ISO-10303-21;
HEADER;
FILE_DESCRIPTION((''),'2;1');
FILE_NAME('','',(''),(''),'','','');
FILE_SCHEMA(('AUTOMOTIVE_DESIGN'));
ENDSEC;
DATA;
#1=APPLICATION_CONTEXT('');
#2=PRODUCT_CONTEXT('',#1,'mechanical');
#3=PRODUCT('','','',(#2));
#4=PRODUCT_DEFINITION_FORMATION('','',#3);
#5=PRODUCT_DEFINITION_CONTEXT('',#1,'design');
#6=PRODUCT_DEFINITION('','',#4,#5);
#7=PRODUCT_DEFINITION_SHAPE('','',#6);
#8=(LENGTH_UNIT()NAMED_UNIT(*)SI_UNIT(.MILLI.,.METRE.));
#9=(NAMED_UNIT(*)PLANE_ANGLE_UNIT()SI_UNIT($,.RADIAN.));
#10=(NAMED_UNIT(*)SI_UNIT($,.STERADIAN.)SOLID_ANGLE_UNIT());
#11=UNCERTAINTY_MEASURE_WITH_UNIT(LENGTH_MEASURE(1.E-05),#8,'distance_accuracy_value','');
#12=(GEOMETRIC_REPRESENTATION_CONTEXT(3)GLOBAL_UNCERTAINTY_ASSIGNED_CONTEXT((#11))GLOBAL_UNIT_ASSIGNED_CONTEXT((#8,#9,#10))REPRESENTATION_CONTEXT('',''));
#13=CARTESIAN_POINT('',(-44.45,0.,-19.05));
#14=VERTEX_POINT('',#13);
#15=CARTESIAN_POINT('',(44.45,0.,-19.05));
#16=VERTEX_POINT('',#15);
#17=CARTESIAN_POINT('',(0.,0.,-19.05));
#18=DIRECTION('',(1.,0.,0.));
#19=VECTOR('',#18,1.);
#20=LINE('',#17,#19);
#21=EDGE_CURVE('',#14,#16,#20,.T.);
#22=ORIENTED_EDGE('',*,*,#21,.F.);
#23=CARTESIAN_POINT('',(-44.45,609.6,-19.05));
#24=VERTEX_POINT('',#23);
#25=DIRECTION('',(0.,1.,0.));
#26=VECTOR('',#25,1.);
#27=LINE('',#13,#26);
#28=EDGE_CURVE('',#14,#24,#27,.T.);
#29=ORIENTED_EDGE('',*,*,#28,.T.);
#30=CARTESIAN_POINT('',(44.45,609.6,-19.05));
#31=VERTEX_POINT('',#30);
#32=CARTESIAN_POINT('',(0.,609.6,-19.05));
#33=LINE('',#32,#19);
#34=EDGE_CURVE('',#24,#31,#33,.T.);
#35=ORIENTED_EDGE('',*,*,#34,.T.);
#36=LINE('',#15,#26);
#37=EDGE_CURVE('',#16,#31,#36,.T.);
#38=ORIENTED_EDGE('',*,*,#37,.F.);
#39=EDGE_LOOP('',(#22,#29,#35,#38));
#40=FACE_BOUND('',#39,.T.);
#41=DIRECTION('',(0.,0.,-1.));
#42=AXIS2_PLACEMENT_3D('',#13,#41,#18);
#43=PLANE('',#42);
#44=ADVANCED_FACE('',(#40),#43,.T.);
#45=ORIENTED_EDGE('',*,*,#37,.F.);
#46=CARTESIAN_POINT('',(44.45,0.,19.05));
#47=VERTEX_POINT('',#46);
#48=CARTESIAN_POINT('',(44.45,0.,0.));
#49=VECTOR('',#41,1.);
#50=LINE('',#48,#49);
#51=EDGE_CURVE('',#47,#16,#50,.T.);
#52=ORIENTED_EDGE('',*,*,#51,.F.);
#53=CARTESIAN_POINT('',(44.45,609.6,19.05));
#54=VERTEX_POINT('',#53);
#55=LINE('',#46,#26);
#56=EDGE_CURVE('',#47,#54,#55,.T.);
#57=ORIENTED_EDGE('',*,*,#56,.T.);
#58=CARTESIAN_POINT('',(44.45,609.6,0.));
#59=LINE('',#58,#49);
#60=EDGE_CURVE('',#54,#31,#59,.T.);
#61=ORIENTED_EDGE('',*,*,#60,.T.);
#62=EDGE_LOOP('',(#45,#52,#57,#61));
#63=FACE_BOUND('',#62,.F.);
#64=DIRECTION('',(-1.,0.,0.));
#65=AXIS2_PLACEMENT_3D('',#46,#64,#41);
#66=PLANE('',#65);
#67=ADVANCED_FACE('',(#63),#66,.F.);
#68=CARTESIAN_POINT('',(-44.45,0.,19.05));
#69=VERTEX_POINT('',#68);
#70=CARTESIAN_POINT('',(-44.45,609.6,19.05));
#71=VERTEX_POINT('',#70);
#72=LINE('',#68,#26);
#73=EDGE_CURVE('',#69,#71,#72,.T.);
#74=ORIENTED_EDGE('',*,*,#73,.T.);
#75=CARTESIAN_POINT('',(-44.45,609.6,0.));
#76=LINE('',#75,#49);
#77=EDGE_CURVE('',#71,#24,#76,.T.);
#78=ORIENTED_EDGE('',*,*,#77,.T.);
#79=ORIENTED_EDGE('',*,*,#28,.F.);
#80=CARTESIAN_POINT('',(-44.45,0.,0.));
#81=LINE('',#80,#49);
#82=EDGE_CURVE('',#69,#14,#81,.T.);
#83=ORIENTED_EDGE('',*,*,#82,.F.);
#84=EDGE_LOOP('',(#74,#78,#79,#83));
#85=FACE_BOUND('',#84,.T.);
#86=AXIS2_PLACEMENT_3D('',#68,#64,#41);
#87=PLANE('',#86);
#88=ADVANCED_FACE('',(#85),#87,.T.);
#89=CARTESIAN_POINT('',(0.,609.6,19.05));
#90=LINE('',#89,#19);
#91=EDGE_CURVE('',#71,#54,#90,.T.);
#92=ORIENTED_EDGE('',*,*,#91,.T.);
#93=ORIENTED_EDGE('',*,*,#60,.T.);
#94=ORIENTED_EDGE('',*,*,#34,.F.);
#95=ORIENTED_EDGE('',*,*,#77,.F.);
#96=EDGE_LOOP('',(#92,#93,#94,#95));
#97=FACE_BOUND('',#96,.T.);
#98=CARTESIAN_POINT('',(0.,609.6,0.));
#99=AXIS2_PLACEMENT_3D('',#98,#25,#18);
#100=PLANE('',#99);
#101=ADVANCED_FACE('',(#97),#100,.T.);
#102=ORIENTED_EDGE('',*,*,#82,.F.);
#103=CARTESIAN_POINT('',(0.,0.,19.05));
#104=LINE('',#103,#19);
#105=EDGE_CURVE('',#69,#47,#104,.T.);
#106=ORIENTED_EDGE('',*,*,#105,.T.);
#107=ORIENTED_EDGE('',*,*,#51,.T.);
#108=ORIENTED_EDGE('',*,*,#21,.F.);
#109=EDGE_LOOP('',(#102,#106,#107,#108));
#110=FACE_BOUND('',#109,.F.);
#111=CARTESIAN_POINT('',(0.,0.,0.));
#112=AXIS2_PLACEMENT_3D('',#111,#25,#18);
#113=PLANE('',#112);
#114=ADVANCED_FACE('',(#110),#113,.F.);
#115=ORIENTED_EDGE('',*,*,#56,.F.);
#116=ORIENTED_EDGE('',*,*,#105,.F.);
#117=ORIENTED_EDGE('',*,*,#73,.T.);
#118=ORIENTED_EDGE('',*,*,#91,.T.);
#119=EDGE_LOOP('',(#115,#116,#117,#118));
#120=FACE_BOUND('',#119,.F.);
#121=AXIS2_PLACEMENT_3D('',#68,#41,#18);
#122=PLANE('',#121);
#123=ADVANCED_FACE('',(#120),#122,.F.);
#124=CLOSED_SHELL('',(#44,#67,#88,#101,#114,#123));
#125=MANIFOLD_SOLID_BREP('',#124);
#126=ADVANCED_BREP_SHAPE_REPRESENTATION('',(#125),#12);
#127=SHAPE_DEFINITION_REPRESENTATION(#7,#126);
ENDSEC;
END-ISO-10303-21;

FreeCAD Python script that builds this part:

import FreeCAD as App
import Part
import Sketcher

V = App.Vector
Q = App.Units.Quantity

doc = App.newDocument("Part")
body = doc.addObject("PartDesign::Body", "Body")

sketch1 = doc.addObject("Sketcher::SketchObject", "Sketch")
body.addObject(sketch1)
sketch1.AttachmentSupport = (doc.XZ_Plane, [""])
sketch1.MapMode = "FlatFace"
sketch1.addGeometry(Part.LineSegment(V(-44, -19, 0), V(-44, 19, 0)), False)
sketch1.addGeometry(Part.LineSegment(V(-44, 19, 0), V(44, 19, 0)), False)
sketch1.addGeometry(Part.LineSegment(V(44, 19, 0), V(44, -19, 0)), False)
sketch1.addGeometry(Part.LineSegment(V(44, -19, 0), V(-44, -19, 0)), False)
sketch1.addConstraint(Sketcher.Constraint("Coincident", 0, 2, 1, 1))
sketch1.addConstraint(Sketcher.Constraint("Coincident", 1, 2, 2, 1))
sketch1.addConstraint(Sketcher.Constraint("Coincident", 2, 2, 3, 1))
sketch1.addConstraint(Sketcher.Constraint("Coincident", 3, 2, 0, 1))
sketch1.addConstraint(Sketcher.Constraint("Vertical", 0))
sketch1.addConstraint(Sketcher.Constraint("Horizontal", 1))
sketch1.addConstraint(Sketcher.Constraint("Vertical", 2))
sketch1.addConstraint(Sketcher.Constraint("Horizontal", 3))
sketch1.addConstraint(Sketcher.Constraint("Symmetric", 0, 2, 2, 2, -1, 1))
sketch1.addConstraint(Sketcher.Constraint("DistanceX", 1, 1, 1, 2, Q("3.5 in")))
sketch1.addConstraint(Sketcher.Constraint("DistanceY", 0, 1, 0, 2, Q("1.5 in")))
pad1 = doc.addObject("PartDesign::Pad", "Pad")
body.addObject(pad1)
pad1.Profile = sketch1
pad1.Length = Q("24 in")
pad1.Reversed = True

doc.recompute()
